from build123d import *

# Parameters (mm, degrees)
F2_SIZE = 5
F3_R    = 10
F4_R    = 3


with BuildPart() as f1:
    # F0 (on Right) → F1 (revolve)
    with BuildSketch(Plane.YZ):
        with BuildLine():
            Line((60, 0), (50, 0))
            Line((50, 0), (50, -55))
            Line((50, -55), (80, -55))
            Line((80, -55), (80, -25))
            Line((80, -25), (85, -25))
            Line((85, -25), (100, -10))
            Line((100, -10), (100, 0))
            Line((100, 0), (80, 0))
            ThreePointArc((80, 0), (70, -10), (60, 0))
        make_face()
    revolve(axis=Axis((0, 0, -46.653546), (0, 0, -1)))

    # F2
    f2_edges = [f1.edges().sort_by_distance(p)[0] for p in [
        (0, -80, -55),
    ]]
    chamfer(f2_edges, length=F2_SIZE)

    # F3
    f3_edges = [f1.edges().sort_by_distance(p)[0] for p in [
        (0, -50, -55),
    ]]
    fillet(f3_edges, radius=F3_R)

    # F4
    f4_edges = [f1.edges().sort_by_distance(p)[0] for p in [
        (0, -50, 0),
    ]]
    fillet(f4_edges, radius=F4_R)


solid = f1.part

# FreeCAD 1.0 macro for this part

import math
import FreeCAD as App
import Part
import Sketcher
Q = App.Units.Quantity


def edges_at(feature, points):
    """Names of the edges that pass closest to the given points."""
    edges = feature.Shape.Edges
    near = lambda p: min(range(len(edges)), key=lambda i: edges[i].distToShape(Part.Vertex(*p))[0])
    return sorted({f"Edge{near(p) + 1}" for p in points})

doc = App.newDocument("Part")
body = doc.addObject("PartDesign::Body", "Body")

# Sketch on YZ plane
sketch1 = body.newObject("Sketcher::SketchObject", "Sketch")
sketch1.AttachmentSupport = (doc.getObject("YZ_Plane"), [""])
sketch1.MapMode = "FlatFace"
sketch1.addGeometry([
    Part.LineSegment(App.Vector(60, 0, 0), App.Vector(50, 0, 0)),  # 0
    Part.LineSegment(App.Vector(50, 0, 0), App.Vector(50, -55, 0)),  # 1
    Part.LineSegment(App.Vector(50, -55, 0), App.Vector(80, -55, 0)),  # 2
    Part.LineSegment(App.Vector(80, -55, 0), App.Vector(80, -25, 0)),  # 3
    Part.LineSegment(App.Vector(80, -25, 0), App.Vector(85, -25, 0)),  # 4
    Part.LineSegment(App.Vector(85, -25, 0), App.Vector(100, -10, 0)),  # 5
    Part.LineSegment(App.Vector(100, -10, 0), App.Vector(100, 0, 0)),  # 6
    Part.LineSegment(App.Vector(100, 0, 0), App.Vector(80, 0, 0)),  # 7
    Part.ArcOfCircle(Part.Circle(App.Vector(70, 0, 0), App.Vector(0, 0, 1), 10), math.radians(180), math.radians(360)),  # 8
], False)
sketch1.addConstraint([
    Sketcher.Constraint("Coincident", 0, 2, 1, 1),
    Sketcher.Constraint("Coincident", 1, 2, 2, 1),
    Sketcher.Constraint("Coincident", 2, 2, 3, 1),
    Sketcher.Constraint("Coincident", 3, 2, 4, 1),
    Sketcher.Constraint("Coincident", 4, 2, 5, 1),
    Sketcher.Constraint("Coincident", 5, 2, 6, 1),
    Sketcher.Constraint("Coincident", 6, 2, 7, 1),
    Sketcher.Constraint("Coincident", 7, 2, 8, 2),
    Sketcher.Constraint("Coincident", 8, 1, 0, 1),
    Sketcher.Constraint("Horizontal", 0),
    Sketcher.Constraint("Vertical", 1),
    Sketcher.Constraint("Horizontal", 2),
    Sketcher.Constraint("Vertical", 3),
    Sketcher.Constraint("Horizontal", 4),
    Sketcher.Constraint("Vertical", 6),
    Sketcher.Constraint("Horizontal", 7),
    Sketcher.Constraint("PointOnObject", 8, 3, -1),
    Sketcher.Constraint("PointOnObject", 0, 2, -1),
    Sketcher.Constraint("PointOnObject", 6, 2, -1),
    Sketcher.Constraint("Vertical", 3, 2, 7, 2),
    Sketcher.Constraint("Equal", 2, 3),
    Sketcher.Constraint("Equal", 0, 6),
    Sketcher.Constraint("Radius", 8, Q("10 mm")),
    Sketcher.Constraint("DistanceX", 0, 2, 0, 1, Q("10 mm")),
    Sketcher.Constraint("DistanceX", 4, 1, 4, 2, Q("5 mm")),
    Sketcher.Constraint("DistanceX", 7, 2, 7, 1, Q("20 mm")),
    Sketcher.Constraint("DistanceY", 1, 2, 1, 1, Q("55 mm")),
    Sketcher.Constraint("DistanceX", -1, 1, 8, 3, Q("70 mm")),
])
revolution = body.newObject("PartDesign::Revolution", "Revolution")
revolution.Profile = sketch1
revolution.ReferenceAxis = (sketch1, ["V_Axis"])
revolution.Angle = 360
doc.recompute()

chamfer = body.newObject("PartDesign::Chamfer", "Chamfer")
chamfer.Base = (revolution, edges_at(revolution, [(0, -80, -55)]))
chamfer.Size = 5
doc.recompute()

fillet = body.newObject("PartDesign::Fillet", "Fillet")
fillet.Base = (chamfer, edges_at(chamfer, [(0, -50, -55)]))
fillet.Radius = 10
doc.recompute()

fillet2 = body.newObject("PartDesign::Fillet", "Fillet001")
fillet2.Base = (fillet, edges_at(fillet, [(0, -50, 0)]))
fillet2.Radius = 3

doc.recompute()
